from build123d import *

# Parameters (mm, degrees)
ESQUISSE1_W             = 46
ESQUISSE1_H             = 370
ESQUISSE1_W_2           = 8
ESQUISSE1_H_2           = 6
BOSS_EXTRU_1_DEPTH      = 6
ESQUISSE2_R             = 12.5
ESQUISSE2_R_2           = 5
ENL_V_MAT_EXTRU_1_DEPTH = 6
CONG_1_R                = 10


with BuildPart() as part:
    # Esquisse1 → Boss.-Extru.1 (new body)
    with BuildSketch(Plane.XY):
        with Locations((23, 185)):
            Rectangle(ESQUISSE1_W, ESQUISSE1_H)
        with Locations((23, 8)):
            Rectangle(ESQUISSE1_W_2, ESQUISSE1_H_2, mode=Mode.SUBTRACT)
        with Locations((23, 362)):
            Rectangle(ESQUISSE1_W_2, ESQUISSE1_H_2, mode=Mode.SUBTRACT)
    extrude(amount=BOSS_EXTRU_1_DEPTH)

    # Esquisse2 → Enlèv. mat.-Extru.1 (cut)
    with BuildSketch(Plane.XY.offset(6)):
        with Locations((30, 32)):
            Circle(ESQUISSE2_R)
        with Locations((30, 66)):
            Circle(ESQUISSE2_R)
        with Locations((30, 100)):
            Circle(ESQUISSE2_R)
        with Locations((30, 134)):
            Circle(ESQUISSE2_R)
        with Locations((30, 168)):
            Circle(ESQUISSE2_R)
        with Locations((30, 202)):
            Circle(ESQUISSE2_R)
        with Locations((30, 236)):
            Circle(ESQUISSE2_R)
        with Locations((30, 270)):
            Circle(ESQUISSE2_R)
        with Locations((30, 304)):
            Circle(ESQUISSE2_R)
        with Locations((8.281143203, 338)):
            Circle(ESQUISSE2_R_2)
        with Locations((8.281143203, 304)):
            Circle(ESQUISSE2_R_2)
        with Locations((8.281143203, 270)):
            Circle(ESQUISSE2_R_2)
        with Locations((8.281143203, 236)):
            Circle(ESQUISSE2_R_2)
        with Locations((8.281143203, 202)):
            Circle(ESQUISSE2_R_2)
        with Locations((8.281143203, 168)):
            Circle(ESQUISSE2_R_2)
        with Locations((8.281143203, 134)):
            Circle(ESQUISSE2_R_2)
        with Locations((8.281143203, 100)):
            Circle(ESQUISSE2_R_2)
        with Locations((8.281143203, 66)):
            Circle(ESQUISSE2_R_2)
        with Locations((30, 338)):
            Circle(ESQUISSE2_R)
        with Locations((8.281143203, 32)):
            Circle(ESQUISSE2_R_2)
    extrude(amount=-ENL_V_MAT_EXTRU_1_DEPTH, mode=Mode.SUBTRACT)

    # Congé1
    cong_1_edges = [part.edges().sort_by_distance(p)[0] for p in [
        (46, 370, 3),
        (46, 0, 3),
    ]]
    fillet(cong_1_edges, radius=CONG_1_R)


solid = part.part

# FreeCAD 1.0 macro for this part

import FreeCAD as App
import Part
import Sketcher
from FreeCAD import Vector
Q = App.Units.Quantity


def edges_at(feature, points):
    """Names of the edges that pass closest to the given points."""
    edges = feature.Shape.Edges
    near = lambda p: min(range(len(edges)), key=lambda i: edges[i].distToShape(Part.Vertex(*p))[0])
    return sorted({f"Edge{near(p) + 1}" for p in points})

doc = App.newDocument("Part")
body = doc.addObject("PartDesign::Body", "Body")

# Sketch on XY plane
sketch1 = doc.addObject("Sketcher::SketchObject", "Sketch")
body.addObject(sketch1)
sketch1.AttachmentSupport = (doc.XY_Plane, [""])
sketch1.MapMode = "FlatFace"
sketch1.addGeometry(Part.LineSegment(Vector(0, 370, 0), Vector(0, 0, 0)), False)
sketch1.addGeometry(Part.LineSegment(Vector(0, 0, 0), Vector(46, 0, 0)), False)
sketch1.addGeometry(Part.LineSegment(Vector(46, 0, 0), Vector(46, 370, 0)), False)
sketch1.addGeometry(Part.LineSegment(Vector(46, 370, 0), Vector(0, 370, 0)), False)
sketch1.addGeometry(Part.LineSegment(Vector(27, 5, 0), Vector(19, 5, 0)), False)
sketch1.addGeometry(Part.LineSegment(Vector(19, 5, 0), Vector(19, 11, 0)), False)
sketch1.addGeometry(Part.LineSegment(Vector(19, 11, 0), Vector(27, 11, 0)), False)
sketch1.addGeometry(Part.LineSegment(Vector(27, 11, 0), Vector(27, 5, 0)), False)
sketch1.addGeometry(Part.LineSegment(Vector(27, 359, 0), Vector(19, 359, 0)), False)
sketch1.addGeometry(Part.LineSegment(Vector(19, 359, 0), Vector(19, 365, 0)), False)
sketch1.addGeometry(Part.LineSegment(Vector(19, 365, 0), Vector(27, 365, 0)), False)
sketch1.addGeometry(Part.LineSegment(Vector(27, 365, 0), Vector(27, 359, 0)), False)
sketch1.addConstraint(Sketcher.Constraint("Coincident", 0, 2, 1, 1))
sketch1.addConstraint(Sketcher.Constraint("Coincident", 1, 2, 2, 1))
sketch1.addConstraint(Sketcher.Constraint("Coincident", 2, 2, 3, 1))
sketch1.addConstraint(Sketcher.Constraint("Coincident", 3, 2, 0, 1))
sketch1.addConstraint(Sketcher.Constraint("Coincident", 4, 2, 5, 1))
sketch1.addConstraint(Sketcher.Constraint("Coincident", 5, 2, 6, 1))
sketch1.addConstraint(Sketcher.Constraint("Coincident", 6, 2, 7, 1))
sketch1.addConstraint(Sketcher.Constraint("Coincident", 7, 2, 4, 1))
sketch1.addConstraint(Sketcher.Constraint("Coincident", 8, 2, 9, 1))
sketch1.addConstraint(Sketcher.Constraint("Coincident", 9, 2, 10, 1))
sketch1.addConstraint(Sketcher.Constraint("Coincident", 10, 2, 11, 1))
sketch1.addConstraint(Sketcher.Constraint("Coincident", 11, 2, 8, 1))
sketch1.addConstraint(Sketcher.Constraint("Vertical", 0))
sketch1.addConstraint(Sketcher.Constraint("Horizontal", 1))
sketch1.addConstraint(Sketcher.Constraint("Vertical", 2))
sketch1.addConstraint(Sketcher.Constraint("Horizontal", 3))
sketch1.addConstraint(Sketcher.Constraint("Horizontal", 4))
sketch1.addConstraint(Sketcher.Constraint("Vertical", 5))
sketch1.addConstraint(Sketcher.Constraint("Horizontal", 6))
sketch1.addConstraint(Sketcher.Constraint("Vertical", 7))
sketch1.addConstraint(Sketcher.Constraint("Horizontal", 8))
sketch1.addConstraint(Sketcher.Constraint("Vertical", 9))
sketch1.addConstraint(Sketcher.Constraint("Horizontal", 10))
sketch1.addConstraint(Sketcher.Constraint("Vertical", 11))
sketch1.addConstraint(Sketcher.Constraint("Coincident", 0, 2, -1, 1))
sketch1.addConstraint(Sketcher.Constraint("Vertical", 5, 2, 8, 2))
sketch1.addConstraint(Sketcher.Constraint("Vertical", 7, 2, 10, 2))
sketch1.addConstraint(Sketcher.Constraint("Equal", 7, 9))
sketch1.addConstraint(Sketcher.Constraint("DistanceX", 1, 1, 1, 2, Q("46 mm")))
sketch1.addConstraint(Sketcher.Constraint("DistanceX", 4, 2, 4, 1, Q("8 mm")))
sketch1.addConstraint(Sketcher.Constraint("DistanceY", 0, 2, 0, 1, Q("370 mm")))
sketch1.addConstraint(Sketcher.Constraint("DistanceY", 5, 1, 5, 2, Q("6 mm")))
sketch1.addConstraint(Sketcher.Constraint("DistanceX", -1, 1, 4, 2, Q("19 mm")))
sketch1.addConstraint(Sketcher.Constraint("DistanceY", -1, 1, 4, 2, Q("5 mm")))
sketch1.addConstraint(Sketcher.Constraint("DistanceY", -1, 1, 8, 2, Q("359 mm")))
pad1 = doc.addObject("PartDesign::Pad", "Pad")
body.addObject(pad1)
pad1.Profile = sketch1
pad1.Length = 6

# Sketch on XY plane
sketch2 = doc.addObject("Sketcher::SketchObject", "Sketch001")
body.addObject(sketch2)
sketch2.AttachmentSupport = (doc.XY_Plane, [""])
sketch2.MapMode = "FlatFace"
sketch2.AttachmentOffset = App.Placement(Vector(0, 0, 6), App.Rotation())
sketch2.addGeometry(Part.Circle(Vector(30, 32, 0), Vector(0, 0, 1), 12.5), False)
sketch2.addGeometry(Part.Circle(Vector(30, 66, 0), Vector(0, 0, 1), 12.5), False)
sketch2.addGeometry(Part.Circle(Vector(30, 100, 0), Vector(0, 0, 1), 12.5), False)
sketch2.addGeometry(Part.Circle(Vector(30, 134, 0), Vector(0, 0, 1), 12.5), False)
sketch2.addGeometry(Part.Circle(Vector(30, 168, 0), Vector(0, 0, 1), 12.5), False)
sketch2.addGeometry(Part.Circle(Vector(30, 202, 0), Vector(0, 0, 1), 12.5), False)
sketch2.addGeometry(Part.Circle(Vector(30, 236, 0), Vector(0, 0, 1), 12.5), False)
sketch2.addGeometry(Part.Circle(Vector(30, 270, 0), Vector(0, 0, 1), 12.5), False)
sketch2.addGeometry(Part.Circle(Vector(30, 304, 0), Vector(0, 0, 1), 12.5), False)
sketch2.addGeometry(Part.Circle(Vector(8.281143, 338, 0), Vector(0, 0, 1), 5), False)
sketch2.addGeometry(Part.Circle(Vector(8.281143, 304, 0), Vector(0, 0, 1), 5), False)
sketch2.addGeometry(Part.Circle(Vector(8.281143, 270, 0), Vector(0, 0, 1), 5), False)
sketch2.addGeometry(Part.Circle(Vector(8.281143, 236, 0), Vector(0, 0, 1), 5), False)
sketch2.addGeometry(Part.Circle(Vector(8.281143, 202, 0), Vector(0, 0, 1), 5), False)
sketch2.addGeometry(Part.Circle(Vector(8.281143, 168, 0), Vector(0, 0, 1), 5), False)
sketch2.addGeometry(Part.Circle(Vector(8.281143, 134, 0), Vector(0, 0, 1), 5), False)
sketch2.addGeometry(Part.Circle(Vector(8.281143, 100, 0), Vector(0, 0, 1), 5), False)
sketch2.addGeometry(Part.Circle(Vector(8.281143, 66, 0), Vector(0, 0, 1), 5), False)
sketch2.addGeometry(Part.Circle(Vector(30, 338, 0), Vector(0, 0, 1), 12.5), False)
sketch2.addGeometry(Part.Circle(Vector(8.281143, 32, 0), Vector(0, 0, 1), 5), False)
sketch2.addConstraint(Sketcher.Constraint("Equal", 0, 1))
sketch2.addConstraint(Sketcher.Constraint("Equal", 1, 2))
sketch2.addConstraint(Sketcher.Constraint("Equal", 2, 3))
sketch2.addConstraint(Sketcher.Constraint("Equal", 3, 4))
sketch2.addConstraint(Sketcher.Constraint("Equal", 4, 5))
sketch2.addConstraint(Sketcher.Constraint("Equal", 5, 6))
sketch2.addConstraint(Sketcher.Constraint("Equal", 6, 7))
sketch2.addConstraint(Sketcher.Constraint("Equal", 7, 8))
sketch2.addConstraint(Sketcher.Constraint("Equal", 9, 10))
sketch2.addConstraint(Sketcher.Constraint("Equal", 10, 11))
sketch2.addConstraint(Sketcher.Constraint("Equal", 11, 12))
sketch2.addConstraint(Sketcher.Constraint("Equal", 12, 13))
sketch2.addConstraint(Sketcher.Constraint("Equal", 13, 14))
sketch2.addConstraint(Sketcher.Constraint("Equal", 14, 15))
sketch2.addConstraint(Sketcher.Constraint("Equal", 15, 16))
sketch2.addConstraint(Sketcher.Constraint("Equal", 16, 17))
sketch2.addConstraint(Sketcher.Constraint("Equal", 8, 18))
sketch2.addConstraint(Sketcher.Constraint("Equal", 17, 19))
sketch2.addConstraint(Sketcher.Constraint("Horizontal", 8, 3, 10, 3))
sketch2.addConstraint(Sketcher.Constraint("Horizontal", 7, 3, 11, 3))
sketch2.addConstraint(Sketcher.Constraint("Horizontal", 6, 3, 12, 3))
sketch2.addConstraint(Sketcher.Constraint("Horizontal", 5, 3, 13, 3))
sketch2.addConstraint(Sketcher.Constraint("Horizontal", 4, 3, 14, 3))
sketch2.addConstraint(Sketcher.Constraint("Horizontal", 3, 3, 15, 3))
sketch2.addConstraint(Sketcher.Constraint("Horizontal", 2, 3, 16, 3))
sketch2.addConstraint(Sketcher.Constraint("Horizontal", 1, 3, 17, 3))
sketch2.addConstraint(Sketcher.Constraint("Horizontal", 9, 3, 18, 3))
sketch2.addConstraint(Sketcher.Constraint("Horizontal", 0, 3, 19, 3))
sketch2.addConstraint(Sketcher.Constraint("Vertical", 0, 3, 1, 3))
sketch2.addConstraint(Sketcher.Constraint("Vertical", 1, 3, 2, 3))
sketch2.addConstraint(Sketcher.Constraint("Vertical", 2, 3, 3, 3))
sketch2.addConstraint(Sketcher.Constraint("Vertical", 3, 3, 4, 3))
sketch2.addConstraint(Sketcher.Constraint("Vertical", 4, 3, 5, 3))
sketch2.addConstraint(Sketcher.Constraint("Vertical", 5, 3, 6, 3))
sketch2.addConstraint(Sketcher.Constraint("Vertical", 6, 3, 7, 3))
sketch2.addConstraint(Sketcher.Constraint("Vertical", 7, 3, 8, 3))
sketch2.addConstraint(Sketcher.Constraint("Vertical", 9, 3, 10, 3))
sketch2.addConstraint(Sketcher.Constraint("Vertical", 10, 3, 11, 3))
sketch2.addConstraint(Sketcher.Constraint("Vertical", 11, 3, 12, 3))
sketch2.addConstraint(Sketcher.Constraint("Vertical", 12, 3, 13, 3))
sketch2.addConstraint(Sketcher.Constraint("Vertical", 13, 3, 14, 3))
sketch2.addConstraint(Sketcher.Constraint("Vertical", 14, 3, 15, 3))
sketch2.addConstraint(Sketcher.Constraint("Vertical", 15, 3, 16, 3))
sketch2.addConstraint(Sketcher.Constraint("Vertical", 16, 3, 17, 3))
sketch2.addConstraint(Sketcher.Constraint("Vertical", 8, 3, 18, 3))
sketch2.addConstraint(Sketcher.Constraint("Vertical", 17, 3, 19, 3))
sketch2.addConstraint(Sketcher.Constraint("Diameter", 0, Q("25 mm")))
sketch2.addConstraint(Sketcher.Constraint("Diameter", 9, Q("10 mm")))
sketch2.addConstraint(Sketcher.Constraint("DistanceX", -1, 1, 0, 3, Q("30 mm")))
sketch2.addConstraint(Sketcher.Constraint("DistanceY", -1, 1, 0, 3, Q("32 mm")))
sketch2.addConstraint(Sketcher.Constraint("DistanceY", -1, 1, 1, 3, Q("66 mm")))
sketch2.addConstraint(Sketcher.Constraint("DistanceY", -1, 1, 2, 3, Q("100 mm")))
sketch2.addConstraint(Sketcher.Constraint("DistanceY", -1, 1, 3, 3, Q("134 mm")))
sketch2.addConstraint(Sketcher.Constraint("DistanceY", -1, 1, 4, 3, Q("168 mm")))
sketch2.addConstraint(Sketcher.Constraint("DistanceY", -1, 1, 5, 3, Q("202 mm")))
sketch2.addConstraint(Sketcher.Constraint("DistanceY", -1, 1, 6, 3, Q("236 mm")))
sketch2.addConstraint(Sketcher.Constraint("DistanceY", -1, 1, 7, 3, Q("270 mm")))
sketch2.addConstraint(Sketcher.Constraint("DistanceY", -1, 1, 8, 3, Q("304 mm")))
sketch2.addConstraint(Sketcher.Constraint("DistanceY", -1, 1, 9, 3, Q("338 mm")))
sketch2.addConstraint(Sketcher.Constraint("DistanceX", -1, 1, 9, 3, Q("8.281143 mm")))
pocket1 = doc.addObject("PartDesign::Pocket", "Pocket")
body.addObject(pocket1)
pocket1.Profile = sketch2
pocket1.Length = 6
doc.recompute()

fillet = doc.addObject("PartDesign::Fillet", "Fillet")
body.addObject(fillet)
fillet.Base = (pocket1, edges_at(pocket1, [(46, 370, 3), (46, 0, 3)]))
fillet.Radius = 10

doc.recompute()
